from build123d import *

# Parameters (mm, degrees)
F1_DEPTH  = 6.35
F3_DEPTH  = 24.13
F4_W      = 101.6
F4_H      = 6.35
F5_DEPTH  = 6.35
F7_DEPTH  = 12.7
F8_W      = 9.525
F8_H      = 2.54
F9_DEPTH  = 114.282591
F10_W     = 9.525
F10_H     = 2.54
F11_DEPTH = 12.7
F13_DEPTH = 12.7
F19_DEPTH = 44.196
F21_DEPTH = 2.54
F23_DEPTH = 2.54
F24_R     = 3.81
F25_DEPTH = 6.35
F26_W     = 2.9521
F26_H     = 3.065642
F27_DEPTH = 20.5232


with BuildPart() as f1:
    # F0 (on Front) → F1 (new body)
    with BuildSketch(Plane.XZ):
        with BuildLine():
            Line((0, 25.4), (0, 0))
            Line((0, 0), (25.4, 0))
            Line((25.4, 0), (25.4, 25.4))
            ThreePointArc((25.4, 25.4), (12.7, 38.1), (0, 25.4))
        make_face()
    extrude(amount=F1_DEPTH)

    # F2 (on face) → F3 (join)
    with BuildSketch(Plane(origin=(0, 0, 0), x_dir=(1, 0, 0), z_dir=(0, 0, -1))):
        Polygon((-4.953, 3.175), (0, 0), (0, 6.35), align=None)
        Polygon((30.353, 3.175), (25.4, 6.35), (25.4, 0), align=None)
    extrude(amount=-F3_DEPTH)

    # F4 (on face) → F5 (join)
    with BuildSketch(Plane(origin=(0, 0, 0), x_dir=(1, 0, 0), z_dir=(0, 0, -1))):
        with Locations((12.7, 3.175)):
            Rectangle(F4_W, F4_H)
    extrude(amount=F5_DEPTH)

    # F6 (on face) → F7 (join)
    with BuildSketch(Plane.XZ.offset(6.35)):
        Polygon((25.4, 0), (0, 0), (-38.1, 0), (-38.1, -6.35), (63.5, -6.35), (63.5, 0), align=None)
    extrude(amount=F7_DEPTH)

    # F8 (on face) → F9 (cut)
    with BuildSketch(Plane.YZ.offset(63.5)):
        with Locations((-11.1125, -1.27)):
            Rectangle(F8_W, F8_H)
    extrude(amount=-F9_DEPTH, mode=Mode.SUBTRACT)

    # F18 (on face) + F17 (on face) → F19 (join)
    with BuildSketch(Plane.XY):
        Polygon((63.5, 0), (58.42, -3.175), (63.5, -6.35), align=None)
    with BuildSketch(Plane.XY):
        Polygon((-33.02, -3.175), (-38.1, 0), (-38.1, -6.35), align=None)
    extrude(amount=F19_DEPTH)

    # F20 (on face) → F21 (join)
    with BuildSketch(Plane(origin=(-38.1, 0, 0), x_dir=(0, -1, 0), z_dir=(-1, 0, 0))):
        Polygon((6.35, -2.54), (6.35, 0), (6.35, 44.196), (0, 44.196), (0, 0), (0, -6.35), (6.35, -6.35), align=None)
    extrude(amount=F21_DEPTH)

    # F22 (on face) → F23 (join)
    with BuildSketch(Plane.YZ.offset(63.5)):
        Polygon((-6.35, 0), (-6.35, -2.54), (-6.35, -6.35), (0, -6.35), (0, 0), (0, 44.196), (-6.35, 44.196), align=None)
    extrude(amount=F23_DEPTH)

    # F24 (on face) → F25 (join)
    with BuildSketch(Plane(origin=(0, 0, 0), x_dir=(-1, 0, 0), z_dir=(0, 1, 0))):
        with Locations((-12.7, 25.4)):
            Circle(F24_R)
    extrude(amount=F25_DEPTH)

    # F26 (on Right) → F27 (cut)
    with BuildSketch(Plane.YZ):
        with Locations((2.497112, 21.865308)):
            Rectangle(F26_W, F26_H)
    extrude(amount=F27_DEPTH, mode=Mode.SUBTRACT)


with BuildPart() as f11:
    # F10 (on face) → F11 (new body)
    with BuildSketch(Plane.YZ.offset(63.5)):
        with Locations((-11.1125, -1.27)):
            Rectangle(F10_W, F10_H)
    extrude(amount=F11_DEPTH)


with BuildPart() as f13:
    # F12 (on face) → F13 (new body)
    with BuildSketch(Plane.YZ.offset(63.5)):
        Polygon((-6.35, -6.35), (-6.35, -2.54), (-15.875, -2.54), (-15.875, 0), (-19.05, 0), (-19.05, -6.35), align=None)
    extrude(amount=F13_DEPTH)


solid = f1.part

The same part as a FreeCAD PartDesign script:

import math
import FreeCAD as App
import Part
import Sketcher
from FreeCAD import Vector
Q = App.Units.Quantity


def add_polygon(sketch, points):
    """Adds a closed chain of lines whose ends are joined by coincident constraints."""
    first, n = sketch.GeometryCount, len(points)
    for a, b in zip(points, points[1:] + points[:1]):
        sketch.addGeometry(Part.LineSegment(App.Vector(*a, 0), App.Vector(*b, 0)), False)
    for i in range(n):
        sketch.addConstraint(Sketcher.Constraint("Coincident", first + i, 2, first + (i + 1) % n, 1))

doc = App.newDocument("Part")
body = doc.addObject("PartDesign::Body", "Body")

sketch1 = body.newObject("Sketcher::SketchObject", "Sketch")
sketch1.AttachmentSupport = (doc.getObject("XZ_Plane"), [""])
sketch1.MapMode = "FlatFace"
sketch1.addGeometry(Part.LineSegment(Vector(0, 25.4, 0), Vector(0, 0, 0)), False)
sketch1.addGeometry(Part.LineSegment(Vector(0, 0, 0), Vector(25.4, 0, 0)), False)
sketch1.addGeometry(Part.LineSegment(Vector(25.4, 0, 0), Vector(25.4, 25.4, 0)), False)
sketch1.addGeometry(Part.ArcOfCircle(Part.Circle(Vector(12.7, 25.4, 0), Vector(0, 0, 1), 12.7), math.radians(0), math.radians(180)), False)
sketch1.addConstraint(Sketcher.Constraint("Coincident", 0, 2, 1, 1))
sketch1.addConstraint(Sketcher.Constraint("Coincident", 1, 2, 2, 1))
sketch1.addConstraint(Sketcher.Constraint("Tangent", 2, 2, 3, 1))
sketch1.addConstraint(Sketcher.Constraint("Tangent", 3, 2, 0, 1))
sketch1.addConstraint(Sketcher.Constraint("Vertical", 0))
sketch1.addConstraint(Sketcher.Constraint("Horizontal", 1))
sketch1.addConstraint(Sketcher.Constraint("Vertical", 2))
sketch1.addConstraint(Sketcher.Constraint("Coincident", 0, 2, -1, 1))
sketch1.addConstraint(Sketcher.Constraint("Equal", 1, 0))
sketch1.addConstraint(Sketcher.Constraint("Radius", 3, Q("0.5 in")))
pad1 = body.newObject("PartDesign::Pad", "Pad")
pad1.Profile = sketch1
pad1.Length = Q("0.25 in")

sketch2 = body.newObject("Sketcher::SketchObject", "Sketch001")
sketch2.AttachmentSupport = (doc.getObject("XY_Plane"), [""])
sketch2.MapMode = "FlatFace"
add_polygon(sketch2, [(-4.953, -3.175), (0, 0), (0, -6.35)])
add_polygon(sketch2, [(30.353, -3.175), (25.4, -6.35), (25.4, 0)])
sketch2.addConstraint(Sketcher.Constraint("Vertical", 1))
sketch2.addConstraint(Sketcher.Constraint("Vertical", 4))
sketch2.addConstraint(Sketcher.Constraint("Coincident", 0, 2, -1, 1))
sketch2.addConstraint(Sketcher.Constraint("PointOnObject", 4, 2, -1))
sketch2.addConstraint(Sketcher.Constraint("Parallel", 0, 3))
sketch2.addConstraint(Sketcher.Constraint("Parallel", 2, 5))
sketch2.addConstraint(Sketcher.Constraint("Horizontal", 1, 2, 3, 2))
sketch2.addConstraint(Sketcher.Constraint("Horizontal", 2, 2, 5, 2))
sketch2.addConstraint(Sketcher.Constraint("DistanceX", -1, 1, 3, 2, Q("1 in")))
sketch2.addConstraint(Sketcher.Constraint("DistanceY", 1, 2, 1, 1, Q("0.25 in")))
sketch2.addConstraint(Sketcher.Constraint("DistanceX", 2, 2, 5, 2, Q("1.39 in")))
pad2 = body.newObject("PartDesign::Pad", "Pad001")
pad2.Profile = sketch2
pad2.Length = Q("0.95 in")

sketch3 = body.newObject("Sketcher::SketchObject", "Sketch002")
sketch3.AttachmentSupport = (doc.getObject("XY_Plane"), [""])
sketch3.MapMode = "FlatFace"
add_polygon(sketch3, [(-38.1, -6.35), (-38.1, 0), (63.5, 0), (63.5, -6.35)])
sketch3.addConstraint(Sketcher.Constraint("Vertical", 0))
sketch3.addConstraint(Sketcher.Constraint("Horizontal", 1))
sketch3.addConstraint(Sketcher.Constraint("Vertical", 2))
sketch3.addConstraint(Sketcher.Constraint("Horizontal", 3))
sketch3.addConstraint(Sketcher.Constraint("PointOnObject", 0, 2, -1))
sketch3.addConstraint(Sketcher.Constraint("DistanceX", 1, 1, 1, 2, Q("4 in")))
sketch3.addConstraint(Sketcher.Constraint("DistanceY", 0, 1, 0, 2, Q("0.25 in")))
sketch3.addConstraint(Sketcher.Constraint("DistanceX", 0, 2, -1, 1, Q("1.5 in")))
pad3 = body.newObject("PartDesign::Pad", "Pad002")
pad3.Profile = sketch3
pad3.Length = Q("0.25 in")
pad3.Reversed = True

sketch4 = body.newObject("Sketcher::SketchObject", "Sketch003")
sketch4.AttachmentSupport = (doc.getObject("XZ_Plane"), [""])
sketch4.MapMode = "FlatFace"
sketch4.AttachmentOffset = App.Placement(Vector(0, 0, 0.25 * 25.4), App.Rotation())
add_polygon(sketch4, [(-38.1, 0), (-38.1, -6.35), (63.5, -6.35), (63.5, 0)])
sketch4.addConstraint(Sketcher.Constraint("Vertical", 0))
sketch4.addConstraint(Sketcher.Constraint("Horizontal", 1))
sketch4.addConstraint(Sketcher.Constraint("Vertical", 2))
sketch4.addConstraint(Sketcher.Constraint("Horizontal", 3))
sketch4.addConstraint(Sketcher.Constraint("PointOnObject", 2, 2, -1))
sketch4.addConstraint(Sketcher.Constraint("DistanceX", 1, 1, 1, 2, Q("4 in")))
sketch4.addConstraint(Sketcher.Constraint("DistanceY", 0, 2, 0, 1, Q("0.25 in")))
sketch4.addConstraint(Sketcher.Constraint("DistanceX", 0, 2, -1, 1, Q("1.5 in")))
pad4 = body.newObject("PartDesign::Pad", "Pad003")
pad4.Profile = sketch4
pad4.Length = Q("0.5 in")

sketch5 = body.newObject("Sketcher::SketchObject", "Sketch004")
sketch5.AttachmentSupport = (doc.getObject("YZ_Plane"), [""])
sketch5.MapMode = "FlatFace"
sketch5.AttachmentOffset = App.Placement(Vector(0, 0, 2.5 * 25.4), App.Rotation())
add_polygon(sketch5, [(-15.875, 0), (-15.875, -2.54), (-6.35, -2.54), (-6.35, 0)])
sketch5.addConstraint(Sketcher.Constraint("Vertical", 0))
sketch5.addConstraint(Sketcher.Constraint("Horizontal", 1))
sketch5.addConstraint(Sketcher.Constraint("Vertical", 2))
sketch5.addConstraint(Sketcher.Constraint("Horizontal", 3))
sketch5.addConstraint(Sketcher.Constraint("PointOnObject", 2, 2, -1))
sketch5.addConstraint(Sketcher.Constraint("DistanceY", 0, 2, 0, 1, Q("0.1 in")))
sketch5.addConstraint(Sketcher.Constraint("DistanceX", 1, 1, 1, 2, Q("0.375 in")))
sketch5.addConstraint(Sketcher.Constraint("DistanceX", 1, 2, -1, 1, Q("0.25 in")))
pocket1 = body.newObject("PartDesign::Pocket", "Pocket")
pocket1.Profile = sketch5
pocket1.Length = 114.282591

sketch6 = body.newObject("Sketcher::SketchObject", "Sketch005")
sketch6.AttachmentSupport = (doc.getObject("XY_Plane"), [""])
sketch6.MapMode = "FlatFace"
add_polygon(sketch6, [(63.5, 0), (58.42, -3.175), (63.5, -6.35)])
add_polygon(sketch6, [(-33.02, -3.175), (-38.1, 0), (-38.1, -6.35)])
sketch6.addConstraint(Sketcher.Constraint("Vertical", 2))
sketch6.addConstraint(Sketcher.Constraint("Vertical", 4))
sketch6.addConstraint(Sketcher.Constraint("PointOnObject", 2, 2, -1))
sketch6.addConstraint(Sketcher.Constraint("PointOnObject", 3, 2, -1))
sketch6.addConstraint(Sketcher.Constraint("Parallel", 1, 3))
sketch6.addConstraint(Sketcher.Constraint("Parallel", 0, 5))
sketch6.addConstraint(Sketcher.Constraint("Horizontal", 1, 2, 4, 2))
sketch6.addConstraint(Sketcher.Constraint("Horizontal", 0, 2, 5, 2))
sketch6.addConstraint(Sketcher.Constraint("DistanceX", 3, 2, 2, 2, Q("4 in")))
sketch6.addConstraint(Sketcher.Constraint("DistanceY", 2, 1, 2, 2, Q("0.25 in")))
sketch6.addConstraint(Sketcher.Constraint("DistanceX", -1, 1, 0, 2, Q("2.3 in")))
sketch6.addConstraint(Sketcher.Constraint("DistanceX", -1, 1, 1, 2, Q("2.5 in")))
pad5 = body.newObject("PartDesign::Pad", "Pad004")
pad5.Profile = sketch6
pad5.Length = Q("1.74 in")

sketch7 = body.newObject("Sketcher::SketchObject", "Sketch006")
sketch7.AttachmentSupport = (doc.getObject("YZ_Plane"), [""])
sketch7.MapMode = "FlatFace"
sketch7.AttachmentOffset = App.Placement(Vector(0, 0, -1.5 * 25.4), App.Rotation())
add_polygon(sketch7, [(-6.35, 44.196), (0, 44.196), (0, -6.35), (-6.35, -6.35)])
sketch7.addConstraint(Sketcher.Constraint("Horizontal", 0))
sketch7.addConstraint(Sketcher.Constraint("Vertical", 1))
sketch7.addConstraint(Sketcher.Constraint("Horizontal", 2))
sketch7.addConstraint(Sketcher.Constraint("Vertical", 3))
sketch7.addConstraint(Sketcher.Constraint("PointOnObject", 0, 2, -2))
sketch7.addConstraint(Sketcher.Constraint("DistanceX", 0, 1, 0, 2, Q("0.25 in")))
sketch7.addConstraint(Sketcher.Constraint("DistanceY", 1, 2, 1, 1, Q("1.99 in")))
sketch7.addConstraint(Sketcher.Constraint("DistanceY", -1, 1, 0, 2, Q("1.74 in")))
pad6 = body.newObject("PartDesign::Pad", "Pad005")
pad6.Profile = sketch7
pad6.Length = Q("0.1 in")
pad6.Reversed = True

sketch8 = body.newObject("Sketcher::SketchObject", "Sketch007")
sketch8.AttachmentSupport = (doc.getObject("YZ_Plane"), [""])
sketch8.MapMode = "FlatFace"
sketch8.AttachmentOffset = App.Placement(Vector(0, 0, 2.5 * 25.4), App.Rotation())
add_polygon(sketch8, [(-6.35, -6.35), (0, -6.35), (0, 44.196), (-6.35, 44.196)])
sketch8.addConstraint(Sketcher.Constraint("Horizontal", 0))
sketch8.addConstraint(Sketcher.Constraint("Vertical", 1))
sketch8.addConstraint(Sketcher.Constraint("Horizontal", 2))
sketch8.addConstraint(Sketcher.Constraint("Vertical", 3))
sketch8.addConstraint(Sketcher.Constraint("PointOnObject", 0, 2, -2))
sketch8.addConstraint(Sketcher.Constraint("DistanceX", 0, 1, 0, 2, Q("0.25 in")))
sketch8.addConstraint(Sketcher.Constraint("DistanceY", 1, 1, 1, 2, Q("1.99 in")))
sketch8.addConstraint(Sketcher.Constraint("DistanceY", 0, 2, -1, 1, Q("0.25 in")))
pad7 = body.newObject("PartDesign::Pad", "Pad006")
pad7.Profile = sketch8
pad7.Length = Q("0.1 in")

sketch9 = body.newObject("Sketcher::SketchObject", "Sketch008")
sketch9.AttachmentSupport = (doc.getObject("XZ_Plane"), [""])
sketch9.MapMode = "FlatFace"
sketch9.addGeometry(Part.Circle(Vector(12.7, 25.4, 0), Vector(0, 0, 1), 3.81), False)
sketch9.addConstraint(Sketcher.Constraint("Diameter", 0, Q("0.3 in")))
sketch9.addConstraint(Sketcher.Constraint("DistanceY", -1, 1, 0, 3, Q("1 in")))
sketch9.addConstraint(Sketcher.Constraint("DistanceX", -1, 1, 0, 3, Q("0.5 in")))
pad8 = body.newObject("PartDesign::Pad", "Pad007")
pad8.Profile = sketch9
pad8.Length = Q("0.25 in")
pad8.Reversed = True

sketch10 = body.newObject("Sketcher::SketchObject", "Sketch009")
sketch10.AttachmentSupport = (doc.getObject("YZ_Plane"), [""])
sketch10.MapMode = "FlatFace"
add_polygon(sketch10, [(1.021062, 23.398129), (1.021062, 20.332487), (3.973162, 20.332487), (3.973162, 23.398129)])
sketch10.addConstraint(Sketcher.Constraint("Vertical", 0))
sketch10.addConstraint(Sketcher.Constraint("Horizontal", 1))
sketch10.addConstraint(Sketcher.Constraint("Vertical", 2))
sketch10.addConstraint(Sketcher.Constraint("Horizontal", 3))
sketch10.addConstraint(Sketcher.Constraint("DistanceX", 1, 1, 1, 2, 2.9521))
sketch10.addConstraint(Sketcher.Constraint("DistanceY", 0, 2, 0, 1, 3.065642))
sketch10.addConstraint(Sketcher.Constraint("DistanceX", -1, 1, 0, 2, 1.021062))
sketch10.addConstraint(Sketcher.Constraint("DistanceY", -1, 1, 2, 2, 23.398129))
pocket2 = body.newObject("PartDesign::Pocket", "Pocket001")
pocket2.Profile = sketch10
pocket2.Length = Q("0.808 in")
pocket2.Reversed = True
body2 = doc.addObject("PartDesign::Body", "Body001")

sketch11 = body2.newObject("Sketcher::SketchObject", "Sketch010")
sketch11.AttachmentSupport = (doc.getObject("YZ_Plane001"), [""])
sketch11.MapMode = "FlatFace"
sketch11.AttachmentOffset = App.Placement(Vector(0, 0, 2.5 * 25.4), App.Rotation())
add_polygon(sketch11, [(-15.875, 0), (-15.875, -2.54), (-6.35, -2.54), (-6.35, 0)])
sketch11.addConstraint(Sketcher.Constraint("Vertical", 0))
sketch11.addConstraint(Sketcher.Constraint("Horizontal", 1))
sketch11.addConstraint(Sketcher.Constraint("Vertical", 2))
sketch11.addConstraint(Sketcher.Constraint("Horizontal", 3))
sketch11.addConstraint(Sketcher.Constraint("PointOnObject", 2, 2, -1))
sketch11.addConstraint(Sketcher.Constraint("DistanceY", 0, 2, 0, 1, Q("0.1 in")))
sketch11.addConstraint(Sketcher.Constraint("DistanceX", 1, 1, 1, 2, Q("0.375 in")))
sketch11.addConstraint(Sketcher.Constraint("DistanceX", 1, 2, -1, 1, Q("0.25 in")))
pad9 = body2.newObject("PartDesign::Pad", "Pad008")
pad9.Profile = sketch11
pad9.Length = Q("0.5 in")
body3 = doc.addObject("PartDesign::Body", "Body002")

sketch12 = body3.newObject("Sketcher::SketchObject", "Sketch011")
sketch12.AttachmentSupport = (doc.getObject("YZ_Plane002"), [""])
sketch12.MapMode = "FlatFace"
sketch12.AttachmentOffset = App.Placement(Vector(0, 0, 2.5 * 25.4), App.Rotation())
add_polygon(sketch12, [(-6.35, -6.35), (-6.35, -2.54), (-15.875, -2.54), (-15.875, 0), (-19.05, 0), (-19.05, -6.35)])
sketch12.addConstraint(Sketcher.Constraint("Vertical", 0))
sketch12.addConstraint(Sketcher.Constraint("Horizontal", 1))
sketch12.addConstraint(Sketcher.Constraint("Vertical", 2))
sketch12.addConstraint(Sketcher.Constraint("Horizontal", 3))
sketch12.addConstraint(Sketcher.Constraint("Vertical", 4))
sketch12.addConstraint(Sketcher.Constraint("Horizontal", 5))
sketch12.addConstraint(Sketcher.Constraint("PointOnObject", 2, 2, -1))
sketch12.addConstraint(Sketcher.Constraint("DistanceX", 5, 1, 5, 2, Q("0.5 in")))
sketch12.addConstraint(Sketcher.Constraint("DistanceY", 2, 1, 2, 2, Q("0.1 in")))
sketch12.addConstraint(Sketcher.Constraint("DistanceY", 0, 1, 0, 2, Q("0.15 in")))
sketch12.addConstraint(Sketcher.Constraint("DistanceX", 1, 2, 1, 1, Q("0.375 in")))
sketch12.addConstraint(Sketcher.Constraint("DistanceX", 0, 2, -1, 1, Q("0.25 in")))
pad10 = body3.newObject("PartDesign::Pad", "Pad009")
pad10.Profile = sketch12
pad10.Length = Q("0.5 in")
body2.Visibility = False
body3.Visibility = False

doc.recompute()
